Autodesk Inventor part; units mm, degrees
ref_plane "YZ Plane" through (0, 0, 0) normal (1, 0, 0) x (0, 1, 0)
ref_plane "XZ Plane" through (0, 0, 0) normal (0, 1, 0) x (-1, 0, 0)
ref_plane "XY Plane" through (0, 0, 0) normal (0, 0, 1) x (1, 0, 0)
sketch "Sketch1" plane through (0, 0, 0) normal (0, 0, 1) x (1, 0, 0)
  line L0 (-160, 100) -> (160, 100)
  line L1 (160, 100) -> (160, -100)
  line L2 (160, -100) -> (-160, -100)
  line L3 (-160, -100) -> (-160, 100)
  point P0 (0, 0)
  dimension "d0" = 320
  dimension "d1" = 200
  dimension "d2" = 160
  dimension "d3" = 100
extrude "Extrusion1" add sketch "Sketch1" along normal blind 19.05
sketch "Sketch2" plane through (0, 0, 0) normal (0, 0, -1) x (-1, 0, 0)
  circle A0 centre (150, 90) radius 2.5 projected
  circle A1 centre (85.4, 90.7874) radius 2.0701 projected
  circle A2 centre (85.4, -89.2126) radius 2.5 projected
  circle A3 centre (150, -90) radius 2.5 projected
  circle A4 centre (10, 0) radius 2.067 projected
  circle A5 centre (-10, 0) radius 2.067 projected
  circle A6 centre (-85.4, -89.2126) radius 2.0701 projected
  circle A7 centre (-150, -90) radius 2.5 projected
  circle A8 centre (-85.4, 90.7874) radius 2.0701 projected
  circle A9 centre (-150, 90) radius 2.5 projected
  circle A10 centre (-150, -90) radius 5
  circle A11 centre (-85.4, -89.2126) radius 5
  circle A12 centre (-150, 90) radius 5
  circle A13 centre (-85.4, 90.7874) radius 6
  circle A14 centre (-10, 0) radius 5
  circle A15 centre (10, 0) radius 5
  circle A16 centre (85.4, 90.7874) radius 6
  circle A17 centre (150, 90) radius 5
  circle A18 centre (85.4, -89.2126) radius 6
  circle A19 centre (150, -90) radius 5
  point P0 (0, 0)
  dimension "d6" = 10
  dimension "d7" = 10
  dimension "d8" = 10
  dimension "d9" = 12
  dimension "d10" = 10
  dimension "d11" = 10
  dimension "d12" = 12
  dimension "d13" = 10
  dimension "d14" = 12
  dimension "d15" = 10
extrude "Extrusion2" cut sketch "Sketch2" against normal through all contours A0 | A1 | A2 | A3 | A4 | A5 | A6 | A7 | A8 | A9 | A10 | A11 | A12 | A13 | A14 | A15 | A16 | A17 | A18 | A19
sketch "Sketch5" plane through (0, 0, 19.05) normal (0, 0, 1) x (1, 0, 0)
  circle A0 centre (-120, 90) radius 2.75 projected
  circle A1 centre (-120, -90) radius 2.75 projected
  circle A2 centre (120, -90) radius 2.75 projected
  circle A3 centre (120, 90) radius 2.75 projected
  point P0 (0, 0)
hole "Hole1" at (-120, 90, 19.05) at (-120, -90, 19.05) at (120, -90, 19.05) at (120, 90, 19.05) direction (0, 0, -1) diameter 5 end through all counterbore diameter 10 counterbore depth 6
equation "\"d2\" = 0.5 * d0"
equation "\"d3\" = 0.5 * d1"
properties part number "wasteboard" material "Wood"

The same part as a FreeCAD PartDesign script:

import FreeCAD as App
import Part
import Sketcher

V = App.Vector
Q = App.Units.Quantity


def add_polygon(sketch, points):
    """Adds a closed chain of lines whose ends are joined by coincident constraints."""
    first, n = sketch.GeometryCount, len(points)
    for a, b in zip(points, points[1:] + points[:1]):
        sketch.addGeometry(Part.LineSegment(App.Vector(*a, 0), App.Vector(*b, 0)), False)
    for i in range(n):
        sketch.addConstraint(Sketcher.Constraint("Coincident", first + i, 2, first + (i + 1) % n, 1))

doc = App.newDocument("Part")
body = doc.addObject("PartDesign::Body", "Body")

sketch1 = body.newObject("Sketcher::SketchObject", "Sketch")
sketch1.AttachmentSupport = (doc.getObject("XY_Plane"), [""])
sketch1.MapMode = "FlatFace"
add_polygon(sketch1, [(160, 100), (-160, 100), (-160, -100), (160, -100)])
sketch1.addConstraint(Sketcher.Constraint("Horizontal", 0))
sketch1.addConstraint(Sketcher.Constraint("Vertical", 1))
sketch1.addConstraint(Sketcher.Constraint("Horizontal", 2))
sketch1.addConstraint(Sketcher.Constraint("Vertical", 3))
sketch1.addConstraint(Sketcher.Constraint("Symmetric", 0, 2, 2, 2, -1, 1))
sketch1.addConstraint(Sketcher.Constraint("DistanceX", 0, 2, 0, 1, Q("320 mm")))
sketch1.addConstraint(Sketcher.Constraint("DistanceY", 1, 2, 1, 1, Q("200 mm")))
pad1 = body.newObject("PartDesign::Pad", "Pad")
pad1.Profile = sketch1
pad1.Length = 19.05

sketch2 = body.newObject("Sketcher::SketchObject", "Sketch001")
sketch2.AttachmentSupport = (doc.getObject("XY_Plane"), [""])
sketch2.MapMode = "FlatFace"
sketch2.addGeometry(Part.Circle(V(-150, 90, 0), V(0, 0, 1), 5), False)
sketch2.addGeometry(Part.Circle(V(-85.4, 90.7874, 0), V(0, 0, 1), 6), False)
sketch2.addGeometry(Part.Circle(V(-85.4, -89.2126, 0), V(0, 0, 1), 6), False)
sketch2.addGeometry(Part.Circle(V(-150, -90, 0), V(0, 0, 1), 5), False)
sketch2.addGeometry(Part.Circle(V(-10, 0, 0), V(0, 0, 1), 5), False)
sketch2.addGeometry(Part.Circle(V(10, 0, 0), V(0, 0, 1), 5), False)
sketch2.addGeometry(Part.Circle(V(85.4, -89.2126, 0), V(0, 0, 1), 5), False)
sketch2.addGeometry(Part.Circle(V(150, -90, 0), V(0, 0, 1), 5), False)
sketch2.addGeometry(Part.Circle(V(85.4, 90.7874, 0), V(0, 0, 1), 6), False)
sketch2.addGeometry(Part.Circle(V(150, 90, 0), V(0, 0, 1), 5), False)
sketch2.addConstraint(Sketcher.Constraint("Equal", 1, 2))
sketch2.addConstraint(Sketcher.Constraint("Equal", 0, 3))
sketch2.addConstraint(Sketcher.Constraint("Equal", 3, 4))
sketch2.addConstraint(Sketcher.Constraint("Equal", 4, 5))
sketch2.addConstraint(Sketcher.Constraint("Equal", 5, 6))
sketch2.addConstraint(Sketcher.Constraint("Equal", 6, 7))
sketch2.addConstraint(Sketcher.Constraint("Equal", 2, 8))
sketch2.addConstraint(Sketcher.Constraint("Equal", 7, 9))
sketch2.addConstraint(Sketcher.Constraint("Symmetric", 4, 3, 5, 3, -1, 1))
sketch2.addConstraint(Sketcher.Constraint("Symmetric", 0, 3, 7, 3, -1, 1))
sketch2.addConstraint(Sketcher.Constraint("Symmetric", 3, 3, 9, 3, -1, 1))
sketch2.addConstraint(Sketcher.Constraint("Symmetric", 2, 3, 6, 3, -2))
sketch2.addConstraint(Sketcher.Constraint("Symmetric", 3, 3, 7, 3, -2))
sketch2.addConstraint(Sketcher.Constraint("Symmetric", 1, 3, 8, 3, -2))
sketch2.addConstraint(Sketcher.Constraint("PointOnObject", 4, 3, -1))
sketch2.addConstraint(Sketcher.Constraint("Vertical", 1, 3, 2, 3))
sketch2.addConstraint(Sketcher.Constraint("Diameter", 0, Q("10 mm")))
sketch2.addConstraint(Sketcher.Constraint("Diameter", 1, Q("12 mm")))
sketch2.addConstraint(Sketcher.Constraint("DistanceX", 4, 3, -1, 1, Q("10 mm")))
sketch2.addConstraint(Sketcher.Constraint("DistanceX", 0, 3, -1, 1, Q("150 mm")))
sketch2.addConstraint(Sketcher.Constraint("DistanceY", -1, 1, 0, 3, Q("90 mm")))
sketch2.addConstraint(Sketcher.Constraint("DistanceY", 2, 3, 1, 3, Q("180 mm")))
sketch2.addConstraint(Sketcher.Constraint("DistanceX", 1, 3, -1, 1, Q("85.4 mm")))
sketch2.addConstraint(Sketcher.Constraint("DistanceY", -1, 1, 1, 3, Q("90.7874 mm")))
pocket1 = body.newObject("PartDesign::Pocket", "Pocket")
pocket1.Profile = sketch2
pocket1.Type = "ThroughAll"
pocket1.Reversed = True

sketch3 = body.newObject("Sketcher::SketchObject", "Sketch002")
sketch3.AttachmentSupport = (doc.getObject("XY_Plane"), [""])
sketch3.MapMode = "FlatFace"
sketch3.AttachmentOffset = App.Placement(V(0, 0, 19.05), App.Rotation())
sketch3.addGeometry(Part.Circle(V(-120, 90, 0), V(0, 0, 1), 2.5), False)
sketch3.addGeometry(Part.Circle(V(-120, -90, 0), V(0, 0, 1), 2.5), False)
sketch3.addGeometry(Part.Circle(V(120, -90, 0), V(0, 0, 1), 2.5), False)
sketch3.addGeometry(Part.Circle(V(120, 90, 0), V(0, 0, 1), 2.5), False)
sketch3.addConstraint(Sketcher.Constraint("Equal", 0, 1))
sketch3.addConstraint(Sketcher.Constraint("Equal", 1, 2))
sketch3.addConstraint(Sketcher.Constraint("Equal", 2, 3))
sketch3.addConstraint(Sketcher.Constraint("Symmetric", 0, 3, 2, 3, -1, 1))
sketch3.addConstraint(Sketcher.Constraint("Symmetric", 1, 3, 3, 3, -1, 1))
sketch3.addConstraint(Sketcher.Constraint("Symmetric", 1, 3, 2, 3, -2))
sketch3.addConstraint(Sketcher.Constraint("Diameter", 0, Q("5 mm")))
sketch3.addConstraint(Sketcher.Constraint("DistanceX", 0, 3, -1, 1, Q("120 mm")))
sketch3.addConstraint(Sketcher.Constraint("DistanceY", -1, 1, 0, 3, Q("90 mm")))
doc.recompute()
hole = body.newObject("PartDesign::Hole", "Hole")
hole.Profile = sketch3
hole.ThreadType = "None"
hole.Diameter = 5
hole.DepthType = "ThroughAll"
hole.HoleCutType = "Counterbore"
hole.HoleCutDiameter = 10
hole.HoleCutDepth = 6

doc.recompute()
